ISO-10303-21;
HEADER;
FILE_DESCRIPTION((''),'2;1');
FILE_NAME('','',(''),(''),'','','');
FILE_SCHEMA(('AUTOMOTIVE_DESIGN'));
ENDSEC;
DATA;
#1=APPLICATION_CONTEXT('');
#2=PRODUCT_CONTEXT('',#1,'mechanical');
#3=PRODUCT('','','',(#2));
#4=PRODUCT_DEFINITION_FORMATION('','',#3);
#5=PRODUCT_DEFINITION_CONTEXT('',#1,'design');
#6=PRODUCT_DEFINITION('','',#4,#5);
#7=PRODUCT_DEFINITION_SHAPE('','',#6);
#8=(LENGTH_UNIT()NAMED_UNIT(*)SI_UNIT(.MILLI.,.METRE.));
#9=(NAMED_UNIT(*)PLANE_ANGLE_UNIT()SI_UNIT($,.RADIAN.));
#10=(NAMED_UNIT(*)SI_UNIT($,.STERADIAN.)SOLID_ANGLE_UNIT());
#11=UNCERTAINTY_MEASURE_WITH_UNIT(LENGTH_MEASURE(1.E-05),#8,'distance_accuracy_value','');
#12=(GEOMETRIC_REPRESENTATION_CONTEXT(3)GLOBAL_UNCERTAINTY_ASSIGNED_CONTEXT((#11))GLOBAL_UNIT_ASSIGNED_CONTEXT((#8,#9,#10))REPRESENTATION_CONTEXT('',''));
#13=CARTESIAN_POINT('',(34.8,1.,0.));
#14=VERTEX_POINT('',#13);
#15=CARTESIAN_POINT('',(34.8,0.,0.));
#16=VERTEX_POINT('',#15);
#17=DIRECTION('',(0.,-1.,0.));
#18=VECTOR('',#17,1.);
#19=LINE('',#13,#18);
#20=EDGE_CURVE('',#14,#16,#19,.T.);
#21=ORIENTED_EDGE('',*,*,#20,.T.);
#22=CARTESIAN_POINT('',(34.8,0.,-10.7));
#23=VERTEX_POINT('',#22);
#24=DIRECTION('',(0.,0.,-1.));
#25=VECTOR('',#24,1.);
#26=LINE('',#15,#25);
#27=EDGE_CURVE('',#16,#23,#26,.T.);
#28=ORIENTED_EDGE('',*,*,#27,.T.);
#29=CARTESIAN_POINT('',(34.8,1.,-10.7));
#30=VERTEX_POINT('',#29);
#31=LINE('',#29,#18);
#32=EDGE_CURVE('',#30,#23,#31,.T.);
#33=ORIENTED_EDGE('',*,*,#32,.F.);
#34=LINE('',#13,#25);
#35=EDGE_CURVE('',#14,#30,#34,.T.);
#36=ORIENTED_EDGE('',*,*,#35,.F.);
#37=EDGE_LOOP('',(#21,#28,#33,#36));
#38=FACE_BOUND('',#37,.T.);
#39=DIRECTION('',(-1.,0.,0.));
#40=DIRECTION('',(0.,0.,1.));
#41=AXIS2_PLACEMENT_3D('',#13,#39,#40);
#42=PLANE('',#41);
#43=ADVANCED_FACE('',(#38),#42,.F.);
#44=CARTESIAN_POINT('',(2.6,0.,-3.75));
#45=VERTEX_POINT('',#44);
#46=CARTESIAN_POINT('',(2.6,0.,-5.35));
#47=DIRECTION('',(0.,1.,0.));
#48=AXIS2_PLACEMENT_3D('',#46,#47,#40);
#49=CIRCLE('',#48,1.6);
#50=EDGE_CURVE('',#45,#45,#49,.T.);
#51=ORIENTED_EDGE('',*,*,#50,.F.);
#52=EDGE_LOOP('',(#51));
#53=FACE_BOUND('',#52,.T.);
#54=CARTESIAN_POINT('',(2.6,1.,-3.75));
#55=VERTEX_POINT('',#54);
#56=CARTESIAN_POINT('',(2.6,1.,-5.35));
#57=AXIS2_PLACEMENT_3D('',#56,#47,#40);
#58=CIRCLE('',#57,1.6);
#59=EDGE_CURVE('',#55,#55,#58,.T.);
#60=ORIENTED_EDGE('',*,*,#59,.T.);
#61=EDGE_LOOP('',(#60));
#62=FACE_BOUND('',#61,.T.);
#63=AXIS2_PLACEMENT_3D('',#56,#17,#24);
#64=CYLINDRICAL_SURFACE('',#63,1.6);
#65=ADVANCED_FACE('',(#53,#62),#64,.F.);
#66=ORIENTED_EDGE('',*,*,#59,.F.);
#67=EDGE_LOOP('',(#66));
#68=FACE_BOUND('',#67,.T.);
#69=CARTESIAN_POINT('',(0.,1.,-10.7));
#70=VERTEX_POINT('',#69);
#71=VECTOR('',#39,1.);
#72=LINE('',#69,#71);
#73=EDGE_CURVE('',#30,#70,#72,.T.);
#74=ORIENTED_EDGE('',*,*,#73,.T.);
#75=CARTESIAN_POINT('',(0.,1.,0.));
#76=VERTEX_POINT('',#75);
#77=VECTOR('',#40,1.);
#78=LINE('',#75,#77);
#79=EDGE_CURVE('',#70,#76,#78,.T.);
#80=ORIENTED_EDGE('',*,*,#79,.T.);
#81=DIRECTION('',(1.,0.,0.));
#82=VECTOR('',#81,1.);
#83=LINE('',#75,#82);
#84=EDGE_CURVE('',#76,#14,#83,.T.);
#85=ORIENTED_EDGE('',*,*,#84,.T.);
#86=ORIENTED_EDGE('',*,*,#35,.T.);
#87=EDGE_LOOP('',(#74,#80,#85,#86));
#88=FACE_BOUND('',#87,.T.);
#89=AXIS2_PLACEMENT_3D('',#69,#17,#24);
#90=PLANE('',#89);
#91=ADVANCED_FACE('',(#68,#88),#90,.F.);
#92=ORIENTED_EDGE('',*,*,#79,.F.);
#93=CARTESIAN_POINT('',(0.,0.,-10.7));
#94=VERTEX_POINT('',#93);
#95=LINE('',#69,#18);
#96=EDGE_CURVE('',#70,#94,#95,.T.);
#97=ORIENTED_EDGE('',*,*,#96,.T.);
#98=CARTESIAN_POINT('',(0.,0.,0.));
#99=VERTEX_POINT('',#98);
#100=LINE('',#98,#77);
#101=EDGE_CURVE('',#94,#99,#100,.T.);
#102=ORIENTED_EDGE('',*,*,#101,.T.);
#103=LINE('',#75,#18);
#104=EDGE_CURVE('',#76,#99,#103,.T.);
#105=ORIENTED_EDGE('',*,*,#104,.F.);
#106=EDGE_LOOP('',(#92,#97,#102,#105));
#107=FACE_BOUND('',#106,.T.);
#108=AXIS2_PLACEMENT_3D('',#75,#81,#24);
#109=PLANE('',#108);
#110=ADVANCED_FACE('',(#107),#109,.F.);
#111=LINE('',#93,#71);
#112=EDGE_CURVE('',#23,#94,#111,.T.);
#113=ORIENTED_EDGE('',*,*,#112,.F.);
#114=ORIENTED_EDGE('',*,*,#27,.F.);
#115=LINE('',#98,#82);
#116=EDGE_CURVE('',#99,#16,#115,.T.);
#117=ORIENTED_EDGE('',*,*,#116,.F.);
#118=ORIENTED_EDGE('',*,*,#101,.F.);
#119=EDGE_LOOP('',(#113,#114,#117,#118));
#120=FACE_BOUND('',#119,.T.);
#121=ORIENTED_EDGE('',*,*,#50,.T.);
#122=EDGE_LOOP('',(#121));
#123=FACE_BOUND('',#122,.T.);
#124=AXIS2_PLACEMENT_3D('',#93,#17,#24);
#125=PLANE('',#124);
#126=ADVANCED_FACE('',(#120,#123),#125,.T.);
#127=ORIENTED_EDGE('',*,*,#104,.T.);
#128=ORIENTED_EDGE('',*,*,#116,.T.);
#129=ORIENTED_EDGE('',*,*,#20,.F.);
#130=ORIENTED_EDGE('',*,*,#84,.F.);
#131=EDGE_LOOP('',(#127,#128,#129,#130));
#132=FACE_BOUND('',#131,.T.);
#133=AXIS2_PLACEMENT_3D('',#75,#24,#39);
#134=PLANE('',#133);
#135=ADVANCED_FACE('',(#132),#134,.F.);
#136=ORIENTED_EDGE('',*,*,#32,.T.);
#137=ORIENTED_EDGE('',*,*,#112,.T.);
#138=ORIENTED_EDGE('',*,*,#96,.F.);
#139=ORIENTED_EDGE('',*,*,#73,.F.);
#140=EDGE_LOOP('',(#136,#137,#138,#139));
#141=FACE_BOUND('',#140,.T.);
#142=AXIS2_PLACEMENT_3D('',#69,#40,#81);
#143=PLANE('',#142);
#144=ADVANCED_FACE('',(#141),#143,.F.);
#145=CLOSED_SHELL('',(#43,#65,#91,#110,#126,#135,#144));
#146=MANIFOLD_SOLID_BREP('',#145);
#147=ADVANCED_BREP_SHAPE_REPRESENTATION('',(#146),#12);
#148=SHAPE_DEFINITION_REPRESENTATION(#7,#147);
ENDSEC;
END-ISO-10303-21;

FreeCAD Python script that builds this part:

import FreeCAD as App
import Part
import Sketcher
Q = App.Units.Quantity


def add_polygon(sketch, points):
    """Adds a closed chain of lines whose ends are joined by coincident constraints."""
    first, n = sketch.GeometryCount, len(points)
    for a, b in zip(points, points[1:] + points[:1]):
        sketch.addGeometry(Part.LineSegment(App.Vector(*a, 0), App.Vector(*b, 0)), False)
    for i in range(n):
        sketch.addConstraint(Sketcher.Constraint("Coincident", first + i, 2, first + (i + 1) % n, 1))

doc = App.newDocument("Part")
body = doc.addObject("PartDesign::Body", "Body")

# Sketch on XZ plane
sketch1 = doc.addObject("Sketcher::SketchObject", "Sketch")
body.addObject(sketch1)
sketch1.AttachmentSupport = (doc.XZ_Plane, [""])
sketch1.MapMode = "FlatFace"
add_polygon(sketch1, [(0, -10.7), (0, 0), (34.8, 0), (34.8, -10.7)])  # lines 0-3
sketch1.addGeometry(Part.Circle(App.Vector(2.6, -5.35, 0), App.Vector(0, 0, 1), 1.6), False)  # 4
sketch1.addConstraint([
    Sketcher.Constraint("Vertical", 0),
    Sketcher.Constraint("Horizontal", 1),
    Sketcher.Constraint("Vertical", 2),
    Sketcher.Constraint("Horizontal", 3),
    Sketcher.Constraint("Coincident", 0, 2, -1, 1),
    Sketcher.Constraint("Diameter", 4, Q("3.2 mm")),
    Sketcher.Constraint("DistanceX", 1, 1, 1, 2, Q("34.8 mm")),
    Sketcher.Constraint("DistanceY", 0, 1, 0, 2, Q("10.7 mm")),
    Sketcher.Constraint("DistanceX", -1, 1, 4, 3, Q("2.6 mm")),
    Sketcher.Constraint("DistanceY", 4, 3, -1, 1, Q("5.35 mm")),
])
pad1 = doc.addObject("PartDesign::Pad", "Pad")
body.addObject(pad1)
pad1.Profile = sketch1
pad1.Length = 1
pad1.Reversed = True

doc.recompute()
